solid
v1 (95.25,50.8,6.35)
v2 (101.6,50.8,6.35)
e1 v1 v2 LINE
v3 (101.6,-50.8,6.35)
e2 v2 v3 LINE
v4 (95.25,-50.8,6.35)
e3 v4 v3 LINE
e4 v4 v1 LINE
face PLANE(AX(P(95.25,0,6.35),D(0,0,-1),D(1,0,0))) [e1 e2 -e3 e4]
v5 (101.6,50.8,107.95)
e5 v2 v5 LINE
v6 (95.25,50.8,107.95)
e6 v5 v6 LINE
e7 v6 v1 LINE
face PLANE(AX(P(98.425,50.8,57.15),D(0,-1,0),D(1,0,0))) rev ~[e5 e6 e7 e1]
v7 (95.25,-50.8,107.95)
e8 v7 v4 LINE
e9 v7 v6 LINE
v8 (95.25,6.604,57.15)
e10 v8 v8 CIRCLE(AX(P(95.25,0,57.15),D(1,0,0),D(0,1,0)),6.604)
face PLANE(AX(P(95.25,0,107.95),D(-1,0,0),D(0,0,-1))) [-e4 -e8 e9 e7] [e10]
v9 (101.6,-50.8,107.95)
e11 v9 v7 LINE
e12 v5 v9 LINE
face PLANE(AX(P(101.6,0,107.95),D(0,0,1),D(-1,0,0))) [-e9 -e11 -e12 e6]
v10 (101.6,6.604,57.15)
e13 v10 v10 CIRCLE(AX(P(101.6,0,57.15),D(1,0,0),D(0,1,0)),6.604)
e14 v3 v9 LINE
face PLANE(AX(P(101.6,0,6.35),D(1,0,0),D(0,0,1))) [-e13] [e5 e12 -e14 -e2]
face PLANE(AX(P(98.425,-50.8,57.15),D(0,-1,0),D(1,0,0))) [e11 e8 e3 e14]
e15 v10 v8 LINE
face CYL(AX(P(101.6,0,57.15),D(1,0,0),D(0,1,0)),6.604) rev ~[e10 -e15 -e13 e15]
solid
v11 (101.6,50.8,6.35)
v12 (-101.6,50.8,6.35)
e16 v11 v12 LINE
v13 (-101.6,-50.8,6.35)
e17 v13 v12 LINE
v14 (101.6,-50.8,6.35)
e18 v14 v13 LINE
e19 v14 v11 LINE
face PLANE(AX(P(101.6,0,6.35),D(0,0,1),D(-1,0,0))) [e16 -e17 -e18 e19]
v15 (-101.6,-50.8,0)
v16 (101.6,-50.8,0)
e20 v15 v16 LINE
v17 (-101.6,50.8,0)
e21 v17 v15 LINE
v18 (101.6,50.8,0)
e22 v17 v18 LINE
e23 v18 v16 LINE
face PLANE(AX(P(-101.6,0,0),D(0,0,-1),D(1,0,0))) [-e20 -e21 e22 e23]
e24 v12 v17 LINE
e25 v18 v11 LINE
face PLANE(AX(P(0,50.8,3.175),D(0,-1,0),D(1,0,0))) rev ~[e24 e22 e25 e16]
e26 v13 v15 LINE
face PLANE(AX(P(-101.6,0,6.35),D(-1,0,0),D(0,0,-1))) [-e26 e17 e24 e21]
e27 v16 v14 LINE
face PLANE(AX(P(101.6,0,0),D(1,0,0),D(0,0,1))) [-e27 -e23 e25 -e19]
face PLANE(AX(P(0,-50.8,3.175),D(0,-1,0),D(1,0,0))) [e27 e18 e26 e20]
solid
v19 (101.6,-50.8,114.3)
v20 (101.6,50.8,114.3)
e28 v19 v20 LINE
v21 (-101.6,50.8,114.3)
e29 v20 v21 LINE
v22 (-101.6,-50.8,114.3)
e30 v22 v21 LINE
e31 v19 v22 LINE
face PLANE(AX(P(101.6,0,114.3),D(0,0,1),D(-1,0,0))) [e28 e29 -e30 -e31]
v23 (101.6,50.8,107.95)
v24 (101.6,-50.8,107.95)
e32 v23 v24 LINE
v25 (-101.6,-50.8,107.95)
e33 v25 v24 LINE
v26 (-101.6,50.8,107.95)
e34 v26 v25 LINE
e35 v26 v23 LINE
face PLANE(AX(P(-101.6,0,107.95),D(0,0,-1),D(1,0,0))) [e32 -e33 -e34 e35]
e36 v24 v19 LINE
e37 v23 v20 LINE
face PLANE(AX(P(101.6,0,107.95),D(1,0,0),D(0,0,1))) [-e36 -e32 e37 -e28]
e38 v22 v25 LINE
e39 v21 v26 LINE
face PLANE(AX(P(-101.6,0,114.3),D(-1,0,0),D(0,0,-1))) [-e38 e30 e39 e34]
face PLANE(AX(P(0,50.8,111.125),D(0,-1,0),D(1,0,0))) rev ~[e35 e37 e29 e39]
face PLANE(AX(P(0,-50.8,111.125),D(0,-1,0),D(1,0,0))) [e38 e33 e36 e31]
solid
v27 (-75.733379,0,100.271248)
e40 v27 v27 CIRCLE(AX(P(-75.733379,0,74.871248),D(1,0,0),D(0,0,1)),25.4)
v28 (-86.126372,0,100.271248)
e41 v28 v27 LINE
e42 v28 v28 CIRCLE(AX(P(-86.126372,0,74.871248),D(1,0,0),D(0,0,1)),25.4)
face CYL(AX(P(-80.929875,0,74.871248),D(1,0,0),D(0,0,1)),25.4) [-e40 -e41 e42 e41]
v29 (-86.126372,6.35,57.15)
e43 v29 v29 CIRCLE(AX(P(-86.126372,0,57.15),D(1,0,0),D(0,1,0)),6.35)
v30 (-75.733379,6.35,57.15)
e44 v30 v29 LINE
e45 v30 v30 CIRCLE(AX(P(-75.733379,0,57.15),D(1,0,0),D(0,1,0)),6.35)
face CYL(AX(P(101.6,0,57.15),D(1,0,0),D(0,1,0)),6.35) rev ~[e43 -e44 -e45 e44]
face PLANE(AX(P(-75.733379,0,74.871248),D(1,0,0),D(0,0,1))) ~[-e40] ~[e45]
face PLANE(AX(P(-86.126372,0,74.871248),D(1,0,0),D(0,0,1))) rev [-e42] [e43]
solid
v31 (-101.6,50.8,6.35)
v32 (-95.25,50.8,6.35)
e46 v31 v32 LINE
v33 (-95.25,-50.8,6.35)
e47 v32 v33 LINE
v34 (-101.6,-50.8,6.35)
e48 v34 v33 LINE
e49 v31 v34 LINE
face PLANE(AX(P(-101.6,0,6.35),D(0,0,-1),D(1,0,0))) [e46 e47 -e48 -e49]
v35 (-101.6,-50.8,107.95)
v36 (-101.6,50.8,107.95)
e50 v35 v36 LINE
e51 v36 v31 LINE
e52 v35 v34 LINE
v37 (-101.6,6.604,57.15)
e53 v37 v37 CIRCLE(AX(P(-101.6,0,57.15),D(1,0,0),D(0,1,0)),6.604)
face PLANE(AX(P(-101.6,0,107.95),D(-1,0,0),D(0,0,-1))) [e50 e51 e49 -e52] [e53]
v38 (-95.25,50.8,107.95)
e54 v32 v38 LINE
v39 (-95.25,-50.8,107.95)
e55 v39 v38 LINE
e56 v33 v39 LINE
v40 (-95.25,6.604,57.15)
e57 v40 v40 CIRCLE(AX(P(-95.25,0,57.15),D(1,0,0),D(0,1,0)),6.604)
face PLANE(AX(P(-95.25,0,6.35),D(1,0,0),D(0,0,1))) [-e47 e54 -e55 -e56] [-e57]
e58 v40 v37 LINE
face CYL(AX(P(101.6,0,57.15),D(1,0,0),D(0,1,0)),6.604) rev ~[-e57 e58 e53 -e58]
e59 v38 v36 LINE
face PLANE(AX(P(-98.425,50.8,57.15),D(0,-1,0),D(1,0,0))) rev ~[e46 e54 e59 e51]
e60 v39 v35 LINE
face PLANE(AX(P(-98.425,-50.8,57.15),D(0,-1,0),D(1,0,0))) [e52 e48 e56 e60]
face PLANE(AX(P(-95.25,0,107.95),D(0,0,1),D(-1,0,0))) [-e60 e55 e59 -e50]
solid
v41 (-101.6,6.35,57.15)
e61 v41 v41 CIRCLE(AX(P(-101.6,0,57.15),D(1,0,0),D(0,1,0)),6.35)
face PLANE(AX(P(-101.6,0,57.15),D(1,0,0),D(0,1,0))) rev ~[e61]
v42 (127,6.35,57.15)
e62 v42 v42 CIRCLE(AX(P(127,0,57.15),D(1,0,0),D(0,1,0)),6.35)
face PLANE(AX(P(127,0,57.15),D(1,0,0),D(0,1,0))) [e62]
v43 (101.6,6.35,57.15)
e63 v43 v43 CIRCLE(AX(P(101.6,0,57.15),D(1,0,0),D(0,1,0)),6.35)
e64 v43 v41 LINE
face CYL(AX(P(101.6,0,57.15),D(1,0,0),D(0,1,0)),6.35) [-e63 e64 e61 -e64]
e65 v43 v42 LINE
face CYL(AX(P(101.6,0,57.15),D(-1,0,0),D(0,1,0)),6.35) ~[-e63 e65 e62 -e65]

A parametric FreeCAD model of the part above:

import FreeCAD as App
import Part
import Sketcher
Q = App.Units.Quantity


def add_polygon(sketch, points):
    """Adds a closed chain of lines whose ends are joined by coincident constraints."""
    first, n = sketch.GeometryCount, len(points)
    for a, b in zip(points, points[1:] + points[:1]):
        sketch.addGeometry(Part.LineSegment(App.Vector(*a, 0), App.Vector(*b, 0)), False)
    for i in range(n):
        sketch.addConstraint(Sketcher.Constraint("Coincident", first + i, 2, first + (i + 1) % n, 1))

doc = App.newDocument("Part")
body = doc.addObject("PartDesign::Body", "Body")

# Sketch on XZ plane
sketch1 = body.newObject("Sketcher::SketchObject", "Sketch")
sketch1.AttachmentSupport = (doc.getObject("XZ_Plane"), [""])
sketch1.MapMode = "FlatFace"
add_polygon(sketch1, [(-102, 114), (-102, 108), (102, 108), (102, 114)])  # lines 0-3
sketch1.addConstraint([
    Sketcher.Constraint("Vertical", 0),
    Sketcher.Constraint("Horizontal", 1),
    Sketcher.Constraint("Vertical", 2),
    Sketcher.Constraint("Horizontal", 3),
    Sketcher.Constraint("DistanceX", 1, 1, 1, 2, Q("8 in")),
    Sketcher.Constraint("DistanceX", 0, 2, -1, 1, Q("4 in")),
    Sketcher.Constraint("DistanceY", 0, 2, 0, 1, Q("0.25 in")),
    Sketcher.Constraint("DistanceY", -1, 1, 2, 2, Q("4.5 in")),
])
pad1 = body.newObject("PartDesign::Pad", "Pad")
pad1.Profile = sketch1
pad1.Length = Q("4 in")
pad1.Midplane = True
body2 = doc.addObject("PartDesign::Body", "Body001")

# Sketch on XZ plane
sketch2 = body2.newObject("Sketcher::SketchObject", "Sketch001")
sketch2.AttachmentSupport = (doc.getObject("XZ_Plane001"), [""])
sketch2.MapMode = "FlatFace"
add_polygon(sketch2, [(-102, 6), (-102, 0), (102, 0), (102, 6)])  # lines 0-3
sketch2.addConstraint([
    Sketcher.Constraint("Vertical", 0),
    Sketcher.Constraint("Horizontal", 1),
    Sketcher.Constraint("Vertical", 2),
    Sketcher.Constraint("Horizontal", 3),
    Sketcher.Constraint("Symmetric", 0, 2, 1, 2, -1, 1),
    Sketcher.Constraint("DistanceX", 1, 1, 1, 2, Q("8 in")),
    Sketcher.Constraint("DistanceY", 0, 2, 0, 1, Q("0.25 in")),
])
pad2 = body2.newObject("PartDesign::Pad", "Pad001")
pad2.Profile = sketch2
pad2.Length = Q("4 in")
pad2.Midplane = True
body3 = doc.addObject("PartDesign::Body", "Body002")

# Sketch on XZ plane
sketch3 = body3.newObject("Sketcher::SketchObject", "Sketch002")
sketch3.AttachmentSupport = (doc.getObject("XZ_Plane002"), [""])
sketch3.MapMode = "FlatFace"
add_polygon(sketch3, [(-102, 108), (-102, 6), (-95, 6), (-95, 108)])  # lines 0-3
sketch3.addConstraint([
    Sketcher.Constraint("Vertical", 0),
    Sketcher.Constraint("Horizontal", 1),
    Sketcher.Constraint("Vertical", 2),
    Sketcher.Constraint("Horizontal", 3),
    Sketcher.Constraint("DistanceY", 0, 2, 0, 1, Q("4 in")),
    Sketcher.Constraint("DistanceX", 0, 2, -1, 1, Q("4 in")),
    Sketcher.Constraint("DistanceX", 1, 1, 1, 2, Q("0.25 in")),
    Sketcher.Constraint("DistanceY", -1, 1, 0, 2, Q("0.25 in")),
])
pad3 = body3.newObject("PartDesign::Pad", "Pad002")
pad3.Profile = sketch3
pad3.Type = "TwoLengths"
pad3.Length = Q("2 in")
pad3.Length2 = Q("2 in")
body4 = doc.addObject("PartDesign::Body", "Body003")

# Sketch on XZ plane
sketch4 = body4.newObject("Sketcher::SketchObject", "Sketch003")
sketch4.AttachmentSupport = (doc.getObject("XZ_Plane003"), [""])
sketch4.MapMode = "FlatFace"
add_polygon(sketch4, [(95, 6), (102, 6), (102, 108), (95, 108)])  # lines 0-3
sketch4.addConstraint([
    Sketcher.Constraint("Horizontal", 0),
    Sketcher.Constraint("Vertical", 1),
    Sketcher.Constraint("Horizontal", 2),
    Sketcher.Constraint("Vertical", 3),
    Sketcher.Constraint("DistanceY", 1, 1, 1, 2, Q("4 in")),
    Sketcher.Constraint("DistanceX", -1, 1, 0, 2, Q("4 in")),
    Sketcher.Constraint("DistanceX", 0, 1, 0, 2, Q("0.25 in")),
    Sketcher.Constraint("DistanceY", -1, 1, 0, 2, Q("0.25 in")),
])
pad4 = body4.newObject("PartDesign::Pad", "Pad003")
pad4.Profile = sketch4
pad4.Type = "TwoLengths"
pad4.Length = Q("2 in")
pad4.Length2 = Q("2 in")
body5 = doc.addObject("PartDesign::Body", "Body004")

# Sketch on XZ plane
sketch5 = body5.newObject("Sketcher::SketchObject", "Sketch004")
sketch5.AttachmentSupport = (doc.getObject("XZ_Plane004"), [""])
sketch5.MapMode = "FlatFace"
add_polygon(sketch5, [(-86, 100), (-86, 75), (-76, 75), (-76, 100)])  # lines 0-3
sketch5.addGeometry(Part.LineSegment(App.Vector(-86, 75, 0), App.Vector(-76, 75, 0)), True)  # axis
sketch5.addConstraint([
    Sketcher.Constraint("Vertical", 0),
    Sketcher.Constraint("Horizontal", 1),
    Sketcher.Constraint("Vertical", 2),
    Sketcher.Constraint("Horizontal", 3),
    Sketcher.Constraint("Horizontal", 4),
    Sketcher.Constraint("Coincident", 4, 1, 0, 2),
    Sketcher.Constraint("Vertical", 2, 2, 4, 2),
    Sketcher.Constraint("DistanceY", 0, 2, 0, 1, Q("1 in")),
    Sketcher.Constraint("DistanceX", 1, 1, 1, 2, Q("10.392994 mm")),
    Sketcher.Constraint("DistanceX", 1, 2, -1, 1, Q("75.733379 mm")),
    Sketcher.Constraint("DistanceY", -1, 1, 0, 2, Q("74.871248 mm")),
])
revolution = body5.newObject("PartDesign::Revolution", "Revolution")
revolution.Profile = sketch5
revolution.ReferenceAxis = (sketch5, ["Axis0"])
revolution.Angle = 360
body6 = doc.addObject("PartDesign::Body", "Body005")

# Sketch on YZ plane
sketch6 = body6.newObject("Sketcher::SketchObject", "Sketch005")
sketch6.AttachmentSupport = (doc.getObject("YZ_Plane005"), [""])
sketch6.MapMode = "FlatFace"
sketch6.AttachmentOffset = App.Placement(App.Vector(0, 0, 4 * 25.4), App.Rotation())
sketch6.addGeometry(Part.Circle(App.Vector(0, 57, 0), App.Vector(0, 0, 1), 7), False)
sketch6.addConstraint([
    Sketcher.Constraint("PointOnObject", 0, 3, -2),
    Sketcher.Constraint("Diameter", 0, Q("0.52 in")),
    Sketcher.Constraint("DistanceY", -1, 1, 0, 3, Q("2.25 in")),
])
pad5 = body6.newObject("PartDesign::Pad", "Pad004")
pad5.Profile = sketch6
pad5.Length = 203.201
pad5.Reversed = True
doc.recompute()

body7 = doc.addObject("PartDesign::Body", "Body006")
body7.BaseFeature = body6
boolean = body3.newObject("PartDesign::Boolean", "Boolean")
boolean.Type = "Cut"
boolean.addObjects([body7])
doc.recompute()

boolean2 = body4.newObject("PartDesign::Boolean", "Boolean001")
boolean2.Type = "Cut"
boolean2.addObjects([body6])
body8 = doc.addObject("PartDesign::Body", "Body007")

# Sketch on YZ plane
sketch7 = body8.newObject("Sketcher::SketchObject", "Sketch006")
sketch7.AttachmentSupport = (doc.getObject("YZ_Plane007"), [""])
sketch7.MapMode = "FlatFace"
sketch7.AttachmentOffset = App.Placement(App.Vector(0, 0, 4 * 25.4), App.Rotation())
sketch7.addGeometry(Part.Circle(App.Vector(0, 57, 0), App.Vector(0, 0, 1), 6), False)
sketch7.addConstraint([
    Sketcher.Constraint("PointOnObject", 0, 3, -2),
    Sketcher.Constraint("Diameter", 0, Q("0.5 in")),
    Sketcher.Constraint("DistanceY", -1, 1, 0, 3, Q("2.25 in")),
])
pad6 = body8.newObject("PartDesign::Pad", "Pad005")
pad6.Profile = sketch7
pad6.Type = "TwoLengths"
pad6.Length = Q("8 in")
pad6.Length2 = Q("1 in")
pad6.Reversed = True
doc.recompute()

body9 = doc.addObject("PartDesign::Body", "Body008")
body9.BaseFeature = body8
boolean3 = body5.newObject("PartDesign::Boolean", "Boolean002")
boolean3.Type = "Cut"
boolean3.addObjects([body9])
doc.recompute()

doc.recompute()
